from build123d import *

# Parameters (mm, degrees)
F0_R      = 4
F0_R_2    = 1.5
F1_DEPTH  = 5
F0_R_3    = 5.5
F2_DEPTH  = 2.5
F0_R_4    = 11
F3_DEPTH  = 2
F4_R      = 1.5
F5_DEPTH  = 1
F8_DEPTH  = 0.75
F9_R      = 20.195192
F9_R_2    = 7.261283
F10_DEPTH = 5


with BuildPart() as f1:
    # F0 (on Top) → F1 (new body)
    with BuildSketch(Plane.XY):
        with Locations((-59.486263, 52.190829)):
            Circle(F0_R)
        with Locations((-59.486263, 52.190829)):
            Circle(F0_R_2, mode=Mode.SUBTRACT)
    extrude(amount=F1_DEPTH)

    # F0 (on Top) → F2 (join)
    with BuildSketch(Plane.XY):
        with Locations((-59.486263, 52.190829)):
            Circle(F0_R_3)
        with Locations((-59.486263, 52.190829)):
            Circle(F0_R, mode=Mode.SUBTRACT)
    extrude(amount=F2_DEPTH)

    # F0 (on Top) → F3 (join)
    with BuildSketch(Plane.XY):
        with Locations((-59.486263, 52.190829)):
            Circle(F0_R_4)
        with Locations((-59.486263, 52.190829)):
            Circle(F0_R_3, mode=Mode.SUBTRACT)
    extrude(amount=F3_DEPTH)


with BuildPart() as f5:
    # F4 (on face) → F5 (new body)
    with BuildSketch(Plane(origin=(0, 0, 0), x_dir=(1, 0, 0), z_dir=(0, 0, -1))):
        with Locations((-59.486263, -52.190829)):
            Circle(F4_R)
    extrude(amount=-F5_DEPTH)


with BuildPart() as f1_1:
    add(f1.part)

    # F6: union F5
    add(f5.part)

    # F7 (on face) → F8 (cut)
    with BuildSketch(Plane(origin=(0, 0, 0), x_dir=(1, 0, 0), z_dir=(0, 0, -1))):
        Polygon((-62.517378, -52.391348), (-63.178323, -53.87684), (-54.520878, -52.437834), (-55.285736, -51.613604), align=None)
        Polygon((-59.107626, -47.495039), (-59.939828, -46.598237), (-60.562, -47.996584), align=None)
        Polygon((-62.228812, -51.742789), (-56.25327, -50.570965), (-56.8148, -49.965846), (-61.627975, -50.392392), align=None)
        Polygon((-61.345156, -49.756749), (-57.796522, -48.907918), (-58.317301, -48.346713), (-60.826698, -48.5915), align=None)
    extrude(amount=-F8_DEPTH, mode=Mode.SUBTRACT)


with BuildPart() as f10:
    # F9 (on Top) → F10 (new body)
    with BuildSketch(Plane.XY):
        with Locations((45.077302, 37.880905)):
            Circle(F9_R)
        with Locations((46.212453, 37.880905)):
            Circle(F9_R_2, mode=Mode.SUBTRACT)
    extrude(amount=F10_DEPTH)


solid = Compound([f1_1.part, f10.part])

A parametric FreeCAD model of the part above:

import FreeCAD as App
import Part
import Sketcher
Q = App.Units.Quantity

doc = App.newDocument("Part")
body = doc.addObject("PartDesign::Body", "Body")

sketch1 = doc.addObject("Sketcher::SketchObject", "Sketch")
body.addObject(sketch1)
sketch1.AttachmentSupport = (doc.XY_Plane, [""])
sketch1.MapMode = "FlatFace"
sketch1.addGeometry([
    Part.Circle(App.Vector(-59.486263, 52.190829, 0), App.Vector(0, 0, 1), 4),
    Part.Circle(App.Vector(-59.486263, 52.190829, 0), App.Vector(0, 0, 1), 1.5),
], False)
sketch1.addConstraint([
    Sketcher.Constraint("Coincident", 1, 3, 0, 3),
    Sketcher.Constraint("Diameter", 0, Q("8 mm")),
    Sketcher.Constraint("Diameter", 1, Q("3 mm")),
    Sketcher.Constraint("DistanceY", -1, 1, 0, 3, Q("52.190829 mm")),
    Sketcher.Constraint("DistanceX", 0, 3, -1, 1, Q("59.486263 mm")),
])
pad1 = doc.addObject("PartDesign::Pad", "Pad")
body.addObject(pad1)
pad1.Profile = sketch1
pad1.Length = 5

sketch2 = doc.addObject("Sketcher::SketchObject", "Sketch001")
body.addObject(sketch2)
sketch2.AttachmentSupport = (doc.XY_Plane, [""])
sketch2.MapMode = "FlatFace"
sketch2.addGeometry([
    Part.Circle(App.Vector(-59.486263, 52.190829, 0), App.Vector(0, 0, 1), 5.5),
    Part.Circle(App.Vector(-59.486263, 52.190829, 0), App.Vector(0, 0, 1), 4),
], False)
sketch2.addConstraint([
    Sketcher.Constraint("Coincident", 1, 3, 0, 3),
    Sketcher.Constraint("Diameter", 0, Q("11 mm")),
    Sketcher.Constraint("Diameter", 1, Q("8 mm")),
    Sketcher.Constraint("DistanceY", -1, 1, 0, 3, Q("52.190829 mm")),
    Sketcher.Constraint("DistanceX", 0, 3, -1, 1, Q("59.486263 mm")),
])
pad2 = doc.addObject("PartDesign::Pad", "Pad001")
body.addObject(pad2)
pad2.Profile = sketch2
pad2.Length = 2.5

sketch3 = doc.addObject("Sketcher::SketchObject", "Sketch002")
body.addObject(sketch3)
sketch3.AttachmentSupport = (doc.XY_Plane, [""])
sketch3.MapMode = "FlatFace"
sketch3.addGeometry([
    Part.Circle(App.Vector(-59.486263, 52.190829, 0), App.Vector(0, 0, 1), 11),
    Part.Circle(App.Vector(-59.486263, 52.190829, 0), App.Vector(0, 0, 1), 5.5),
], False)
sketch3.addConstraint([
    Sketcher.Constraint("Coincident", 1, 3, 0, 3),
    Sketcher.Constraint("Diameter", 0, Q("22 mm")),
    Sketcher.Constraint("Diameter", 1, Q("11 mm")),
    Sketcher.Constraint("DistanceY", -1, 1, 0, 3, Q("52.190829 mm")),
    Sketcher.Constraint("DistanceX", 0, 3, -1, 1, Q("59.486263 mm")),
])
pad3 = doc.addObject("PartDesign::Pad", "Pad002")
body.addObject(pad3)
pad3.Profile = sketch3
pad3.Length = 2
body2 = doc.addObject("PartDesign::Body", "Body001")

sketch4 = doc.addObject("Sketcher::SketchObject", "Sketch003")
body2.addObject(sketch4)
sketch4.AttachmentSupport = (doc.getObject("XY_Plane001"), [""])
sketch4.MapMode = "FlatFace"
sketch4.addGeometry(Part.Circle(App.Vector(-59.486263, 52.190829, 0), App.Vector(0, 0, 1), 1.5), False)
sketch4.addConstraint([
    Sketcher.Constraint("Diameter", 0, Q("3 mm")),
    Sketcher.Constraint("DistanceY", -1, 1, 0, 3, Q("52.190829 mm")),
    Sketcher.Constraint("DistanceX", 0, 3, -1, 1, Q("59.486263 mm")),
])
pad4 = doc.addObject("PartDesign::Pad", "Pad003")
body2.addObject(pad4)
pad4.Profile = sketch4
pad4.Length = 1
doc.recompute()

boolean = doc.addObject("PartDesign::Boolean", "Boolean")
body.addObject(boolean)
boolean.Type = "Fuse"
boolean.addObjects([body2])

sketch5 = doc.addObject("Sketcher::SketchObject", "Sketch004")
body.addObject(sketch5)
sketch5.AttachmentSupport = (doc.XY_Plane, [""])
sketch5.MapMode = "FlatFace"
sketch5.addGeometry([
    Part.LineSegment(App.Vector(-62.517378, 52.391348, 0), App.Vector(-63.178323, 53.87684, 0)),
    Part.LineSegment(App.Vector(-63.178323, 53.87684, 0), App.Vector(-54.520878, 52.437834, 0)),
    Part.LineSegment(App.Vector(-54.520878, 52.437834, 0), App.Vector(-55.285736, 51.613604, 0)),
    Part.LineSegment(App.Vector(-55.285736, 51.613604, 0), App.Vector(-62.517378, 52.391348, 0)),
    Part.LineSegment(App.Vector(-59.107626, 47.495039, 0), App.Vector(-59.939828, 46.598237, 0)),
    Part.LineSegment(App.Vector(-59.939828, 46.598237, 0), App.Vector(-60.562, 47.996584, 0)),
    Part.LineSegment(App.Vector(-60.562, 47.996584, 0), App.Vector(-59.107626, 47.495039, 0)),
    Part.LineSegment(App.Vector(-62.228812, 51.742789, 0), App.Vector(-56.25327, 50.570965, 0)),
    Part.LineSegment(App.Vector(-56.25327, 50.570965, 0), App.Vector(-56.8148, 49.965846, 0)),
    Part.LineSegment(App.Vector(-56.8148, 49.965846, 0), App.Vector(-61.627975, 50.392392, 0)),
    Part.LineSegment(App.Vector(-61.627975, 50.392392, 0), App.Vector(-62.228812, 51.742789, 0)),
    Part.LineSegment(App.Vector(-61.345156, 49.756749, 0), App.Vector(-57.796522, 48.907918, 0)),
    Part.LineSegment(App.Vector(-57.796522, 48.907918, 0), App.Vector(-58.317301, 48.346713, 0)),
    Part.LineSegment(App.Vector(-58.317301, 48.346713, 0), App.Vector(-60.826698, 48.5915, 0)),
    Part.LineSegment(App.Vector(-60.826698, 48.5915, 0), App.Vector(-61.345156, 49.756749, 0)),
], False)
sketch5.addConstraint([
    Sketcher.Constraint("Coincident", 0, 2, 1, 1),
    Sketcher.Constraint("Coincident", 1, 2, 2, 1),
    Sketcher.Constraint("Coincident", 2, 2, 3, 1),
    Sketcher.Constraint("Coincident", 3, 2, 0, 1),
    Sketcher.Constraint("Coincident", 4, 2, 5, 1),
    Sketcher.Constraint("Coincident", 5, 2, 6, 1),
    Sketcher.Constraint("Coincident", 6, 2, 4, 1),
    Sketcher.Constraint("Coincident", 7, 2, 8, 1),
    Sketcher.Constraint("Coincident", 8, 2, 9, 1),
    Sketcher.Constraint("Coincident", 9, 2, 10, 1),
    Sketcher.Constraint("Coincident", 10, 2, 7, 1),
    Sketcher.Constraint("Coincident", 11, 2, 12, 1),
    Sketcher.Constraint("Coincident", 12, 2, 13, 1),
    Sketcher.Constraint("Coincident", 13, 2, 14, 1),
    Sketcher.Constraint("Coincident", 14, 2, 11, 1),
    Sketcher.Constraint("Parallel", 2, 4),
    Sketcher.Constraint("Parallel", 0, 5),
    Sketcher.Constraint("Parallel", 4, 8),
    Sketcher.Constraint("Parallel", 5, 10),
    Sketcher.Constraint("Parallel", 8, 12),
    Sketcher.Constraint("Parallel", 10, 14),
    Sketcher.Constraint("DistanceX", 5, 2, -1, 1, Q("60.562 mm")),
    Sketcher.Constraint("DistanceX", 8, 2, -1, 1, Q("56.8148 mm")),
    Sketcher.Constraint("DistanceX", 12, 2, -1, 1, Q("58.317301 mm")),
    Sketcher.Constraint("DistanceY", -1, 1, 13, 2, Q("48.5915 mm")),
    Sketcher.Constraint("DistanceX", 3, 2, 1, 2, Q("7.9965 mm")),
    Sketcher.Constraint("DistanceX", 4, 2, 6, 2, Q("0.832202 mm")),
    Sketcher.Constraint("DistanceX", 13, 2, 5, 2, Q("0.264698 mm")),
    Sketcher.Constraint("DistanceY", 14, 2, 3, 2, Q("2.634599 mm")),
    Sketcher.Constraint("Distance", 2, Q("1.124439 mm")),
    Sketcher.Constraint("Distance", 8, Q("0.825521 mm")),
    Sketcher.Constraint("Distance", 9, Q("4.832038 mm")),
    Sketcher.Constraint("Distance", 10, Q("1.478032 mm")),
    Sketcher.Constraint("Distance", 11, Q("3.648742 mm")),
    Sketcher.Constraint("DistanceY", -1, 1, 0, 2, Q("53.87684 mm")),
    Sketcher.Constraint("DistanceX", 1, 2, -1, 1, Q("54.520878 mm")),
    Sketcher.Constraint("DistanceY", -1, 1, 6, 2, Q("47.495039 mm")),
    Sketcher.Constraint("DistanceX", 7, 2, -1, 1, Q("56.25327 mm")),
    Sketcher.Constraint("DistanceX", 10, 2, -1, 1, Q("62.228812 mm")),
    Sketcher.Constraint("DistanceY", -1, 1, 10, 2, Q("51.742789 mm")),
    Sketcher.Constraint("DistanceY", -1, 1, 11, 2, Q("48.907918 mm")),
    Sketcher.Constraint("DistanceY", -1, 1, 14, 2, Q("49.756749 mm")),
    Sketcher.Constraint("DistanceX", 3, 2, 4, 2, Q("2.57755 mm")),
    Sketcher.Constraint("DistanceY", 5, 2, 2, 2, Q("3.61702 mm")),
    Sketcher.Constraint("DistanceY", 7, 2, 2, 2, Q("1.042639 mm")),
])
pocket1 = doc.addObject("PartDesign::Pocket", "Pocket")
body.addObject(pocket1)
pocket1.Profile = sketch5
pocket1.Length = 0.75
pocket1.Reversed = True
body3 = doc.addObject("PartDesign::Body", "Body002")

sketch6 = doc.addObject("Sketcher::SketchObject", "Sketch005")
body3.addObject(sketch6)
sketch6.AttachmentSupport = (doc.getObject("XY_Plane002"), [""])
sketch6.MapMode = "FlatFace"
sketch6.addGeometry([
    Part.Circle(App.Vector(45.077302, 37.880905, 0), App.Vector(0, 0, 1), 20.195192),
    Part.Circle(App.Vector(46.212453, 37.880905, 0), App.Vector(0, 0, 1), 7.261283),
], False)
sketch6.addConstraint([
    Sketcher.Constraint("Horizontal", 0, 3, 1, 3),
    Sketcher.Constraint("Diameter", 0, Q("40.390384 mm")),
    Sketcher.Constraint("Diameter", 1, Q("14.522566 mm")),
    Sketcher.Constraint("DistanceX", 0, 3, 1, 3, Q("1.135151 mm")),
    Sketcher.Constraint("DistanceX", -1, 1, 0, 3, Q("45.077302 mm")),
    Sketcher.Constraint("DistanceY", -1, 1, 0, 3, Q("37.880905 mm")),
])
pad5 = doc.addObject("PartDesign::Pad", "Pad004")
body3.addObject(pad5)
pad5.Profile = sketch6
pad5.Length = 5

doc.recompute()
